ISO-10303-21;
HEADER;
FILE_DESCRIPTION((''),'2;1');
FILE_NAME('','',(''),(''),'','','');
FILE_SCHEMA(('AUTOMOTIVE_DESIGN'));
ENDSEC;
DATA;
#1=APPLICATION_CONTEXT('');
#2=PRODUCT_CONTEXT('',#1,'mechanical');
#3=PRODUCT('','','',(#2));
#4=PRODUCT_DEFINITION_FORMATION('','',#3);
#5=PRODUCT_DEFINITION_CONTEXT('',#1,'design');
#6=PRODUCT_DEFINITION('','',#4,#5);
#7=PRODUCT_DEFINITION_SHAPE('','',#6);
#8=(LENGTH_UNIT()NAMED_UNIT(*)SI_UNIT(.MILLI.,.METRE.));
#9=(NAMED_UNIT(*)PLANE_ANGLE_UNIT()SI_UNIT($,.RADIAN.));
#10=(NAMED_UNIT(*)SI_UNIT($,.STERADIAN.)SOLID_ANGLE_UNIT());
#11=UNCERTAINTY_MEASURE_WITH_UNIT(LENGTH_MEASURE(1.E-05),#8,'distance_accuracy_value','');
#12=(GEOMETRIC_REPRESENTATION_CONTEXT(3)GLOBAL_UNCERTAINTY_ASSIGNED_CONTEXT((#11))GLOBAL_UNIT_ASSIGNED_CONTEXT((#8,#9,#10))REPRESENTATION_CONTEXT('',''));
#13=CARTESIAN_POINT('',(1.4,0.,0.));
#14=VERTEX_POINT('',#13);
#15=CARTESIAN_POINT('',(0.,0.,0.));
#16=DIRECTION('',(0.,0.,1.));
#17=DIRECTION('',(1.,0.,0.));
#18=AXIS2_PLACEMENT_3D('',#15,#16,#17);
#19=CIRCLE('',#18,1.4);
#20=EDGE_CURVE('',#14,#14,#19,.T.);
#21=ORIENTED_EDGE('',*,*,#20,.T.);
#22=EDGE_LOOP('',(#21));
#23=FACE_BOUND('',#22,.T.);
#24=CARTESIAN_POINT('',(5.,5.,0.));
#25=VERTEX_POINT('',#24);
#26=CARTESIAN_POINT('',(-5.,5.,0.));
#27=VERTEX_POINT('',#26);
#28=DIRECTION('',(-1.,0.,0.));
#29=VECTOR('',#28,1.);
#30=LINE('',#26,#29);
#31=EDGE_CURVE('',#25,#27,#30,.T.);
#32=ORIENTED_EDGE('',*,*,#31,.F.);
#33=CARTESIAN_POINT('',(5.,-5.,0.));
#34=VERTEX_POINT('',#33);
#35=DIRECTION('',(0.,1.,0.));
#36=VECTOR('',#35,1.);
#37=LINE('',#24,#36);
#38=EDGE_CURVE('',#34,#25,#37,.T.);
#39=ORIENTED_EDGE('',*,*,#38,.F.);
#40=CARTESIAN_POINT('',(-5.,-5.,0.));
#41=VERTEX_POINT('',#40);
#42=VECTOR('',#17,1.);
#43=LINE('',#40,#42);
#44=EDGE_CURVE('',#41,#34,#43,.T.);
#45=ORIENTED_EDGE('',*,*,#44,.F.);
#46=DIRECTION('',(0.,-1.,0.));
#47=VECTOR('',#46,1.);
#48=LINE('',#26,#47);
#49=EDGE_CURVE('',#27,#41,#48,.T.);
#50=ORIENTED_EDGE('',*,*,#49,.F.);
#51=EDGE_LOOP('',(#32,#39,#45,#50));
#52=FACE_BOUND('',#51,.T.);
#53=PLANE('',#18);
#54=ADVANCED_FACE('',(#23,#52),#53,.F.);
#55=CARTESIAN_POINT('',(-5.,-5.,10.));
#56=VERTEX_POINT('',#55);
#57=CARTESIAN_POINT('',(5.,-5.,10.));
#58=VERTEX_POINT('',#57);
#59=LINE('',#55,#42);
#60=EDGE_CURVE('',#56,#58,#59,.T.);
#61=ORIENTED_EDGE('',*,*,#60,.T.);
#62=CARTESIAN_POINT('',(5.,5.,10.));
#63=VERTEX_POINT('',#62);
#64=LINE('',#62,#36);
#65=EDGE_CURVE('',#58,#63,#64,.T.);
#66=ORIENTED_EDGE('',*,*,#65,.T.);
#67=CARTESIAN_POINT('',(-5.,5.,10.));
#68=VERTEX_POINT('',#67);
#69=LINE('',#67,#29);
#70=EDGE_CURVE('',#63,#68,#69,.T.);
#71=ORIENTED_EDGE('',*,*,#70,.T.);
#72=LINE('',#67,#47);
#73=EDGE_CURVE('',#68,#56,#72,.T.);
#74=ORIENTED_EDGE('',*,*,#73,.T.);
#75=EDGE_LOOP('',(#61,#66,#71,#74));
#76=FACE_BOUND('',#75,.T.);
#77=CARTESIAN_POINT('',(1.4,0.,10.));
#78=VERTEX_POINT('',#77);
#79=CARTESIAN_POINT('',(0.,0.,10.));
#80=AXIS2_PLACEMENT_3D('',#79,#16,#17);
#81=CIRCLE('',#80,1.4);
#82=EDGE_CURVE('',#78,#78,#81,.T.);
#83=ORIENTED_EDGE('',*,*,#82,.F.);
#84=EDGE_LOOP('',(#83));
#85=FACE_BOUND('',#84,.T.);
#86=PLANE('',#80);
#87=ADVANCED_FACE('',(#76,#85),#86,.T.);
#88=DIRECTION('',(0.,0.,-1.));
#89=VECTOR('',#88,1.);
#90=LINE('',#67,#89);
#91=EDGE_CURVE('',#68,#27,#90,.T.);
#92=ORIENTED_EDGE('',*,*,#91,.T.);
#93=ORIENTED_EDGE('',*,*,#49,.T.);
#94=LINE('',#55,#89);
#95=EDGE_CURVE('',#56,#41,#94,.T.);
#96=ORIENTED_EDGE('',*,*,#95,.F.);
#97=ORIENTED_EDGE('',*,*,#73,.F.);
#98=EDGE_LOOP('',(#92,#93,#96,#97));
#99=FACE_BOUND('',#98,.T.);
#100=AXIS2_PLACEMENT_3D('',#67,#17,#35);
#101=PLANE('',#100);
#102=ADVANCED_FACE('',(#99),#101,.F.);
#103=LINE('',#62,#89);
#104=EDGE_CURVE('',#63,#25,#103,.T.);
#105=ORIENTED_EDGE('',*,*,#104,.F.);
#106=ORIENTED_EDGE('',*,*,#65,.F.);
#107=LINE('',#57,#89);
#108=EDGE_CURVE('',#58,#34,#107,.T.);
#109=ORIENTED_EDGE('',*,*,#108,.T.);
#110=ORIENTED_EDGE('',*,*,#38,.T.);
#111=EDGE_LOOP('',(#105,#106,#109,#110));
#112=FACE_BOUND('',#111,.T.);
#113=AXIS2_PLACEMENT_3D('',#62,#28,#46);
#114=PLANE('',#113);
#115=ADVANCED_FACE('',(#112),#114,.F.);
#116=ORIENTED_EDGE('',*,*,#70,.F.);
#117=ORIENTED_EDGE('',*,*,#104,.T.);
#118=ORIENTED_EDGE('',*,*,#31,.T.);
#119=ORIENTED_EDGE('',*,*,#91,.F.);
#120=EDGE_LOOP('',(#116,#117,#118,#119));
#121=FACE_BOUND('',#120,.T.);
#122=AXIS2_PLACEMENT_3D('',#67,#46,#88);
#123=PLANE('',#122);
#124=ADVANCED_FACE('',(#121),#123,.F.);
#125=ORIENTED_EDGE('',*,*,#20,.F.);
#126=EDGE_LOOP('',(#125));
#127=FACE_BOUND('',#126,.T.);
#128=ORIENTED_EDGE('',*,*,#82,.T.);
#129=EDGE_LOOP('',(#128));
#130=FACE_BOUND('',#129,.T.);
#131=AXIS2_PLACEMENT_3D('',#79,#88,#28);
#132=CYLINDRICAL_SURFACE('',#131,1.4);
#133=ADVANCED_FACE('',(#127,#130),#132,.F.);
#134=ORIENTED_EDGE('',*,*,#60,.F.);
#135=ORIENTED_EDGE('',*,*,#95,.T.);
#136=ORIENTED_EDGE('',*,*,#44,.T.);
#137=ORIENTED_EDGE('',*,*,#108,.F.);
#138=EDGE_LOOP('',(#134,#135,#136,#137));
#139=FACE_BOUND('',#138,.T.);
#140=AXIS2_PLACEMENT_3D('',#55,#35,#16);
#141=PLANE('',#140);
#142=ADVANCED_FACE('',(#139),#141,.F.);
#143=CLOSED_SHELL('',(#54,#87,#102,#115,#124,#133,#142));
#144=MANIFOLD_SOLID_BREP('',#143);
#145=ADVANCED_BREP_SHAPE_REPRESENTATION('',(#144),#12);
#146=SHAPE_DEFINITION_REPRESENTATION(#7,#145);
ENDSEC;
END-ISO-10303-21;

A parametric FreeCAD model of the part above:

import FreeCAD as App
import Part
import Sketcher


def add_polygon(sketch, points):
    """Adds a closed chain of lines whose ends are joined by coincident constraints."""
    first, n = sketch.GeometryCount, len(points)
    for a, b in zip(points, points[1:] + points[:1]):
        sketch.addGeometry(Part.LineSegment(App.Vector(*a, 0), App.Vector(*b, 0)), False)
    for i in range(n):
        sketch.addConstraint(Sketcher.Constraint("Coincident", first + i, 2, first + (i + 1) % n, 1))

doc = App.newDocument("Part")
body = doc.addObject("PartDesign::Body", "Body")

sketch1 = body.newObject("Sketcher::SketchObject", "Sketch")
sketch1.AttachmentSupport = (doc.getObject("XY_Plane"), [""])
sketch1.MapMode = "FlatFace"
add_polygon(sketch1, [(-5, 5), (-5, -5), (5, -5), (5, 5)])
sketch1.addGeometry(Part.Circle(App.Vector(0, 0, 0), App.Vector(0, 0, 1), 1.4), False)
sketch1.addConstraint(Sketcher.Constraint("Vertical", 0))
sketch1.addConstraint(Sketcher.Constraint("Horizontal", 1))
sketch1.addConstraint(Sketcher.Constraint("Vertical", 2))
sketch1.addConstraint(Sketcher.Constraint("Horizontal", 3))
sketch1.addConstraint(Sketcher.Constraint("Coincident", 4, 3, -1, 1))
sketch1.addConstraint(Sketcher.Constraint("Symmetric", 0, 2, 2, 2, -1, 1))
sketch1.addConstraint(Sketcher.Constraint("Equal", 3, 0))
sketch1.addConstraint(Sketcher.Constraint("Diameter", 4, 2.8))
sketch1.addConstraint(Sketcher.Constraint("DistanceX", 1, 1, 1, 2, 10.0))
pad1 = body.newObject("PartDesign::Pad", "Pad")
pad1.Profile = sketch1
pad1.Length = 10

doc.recompute()
